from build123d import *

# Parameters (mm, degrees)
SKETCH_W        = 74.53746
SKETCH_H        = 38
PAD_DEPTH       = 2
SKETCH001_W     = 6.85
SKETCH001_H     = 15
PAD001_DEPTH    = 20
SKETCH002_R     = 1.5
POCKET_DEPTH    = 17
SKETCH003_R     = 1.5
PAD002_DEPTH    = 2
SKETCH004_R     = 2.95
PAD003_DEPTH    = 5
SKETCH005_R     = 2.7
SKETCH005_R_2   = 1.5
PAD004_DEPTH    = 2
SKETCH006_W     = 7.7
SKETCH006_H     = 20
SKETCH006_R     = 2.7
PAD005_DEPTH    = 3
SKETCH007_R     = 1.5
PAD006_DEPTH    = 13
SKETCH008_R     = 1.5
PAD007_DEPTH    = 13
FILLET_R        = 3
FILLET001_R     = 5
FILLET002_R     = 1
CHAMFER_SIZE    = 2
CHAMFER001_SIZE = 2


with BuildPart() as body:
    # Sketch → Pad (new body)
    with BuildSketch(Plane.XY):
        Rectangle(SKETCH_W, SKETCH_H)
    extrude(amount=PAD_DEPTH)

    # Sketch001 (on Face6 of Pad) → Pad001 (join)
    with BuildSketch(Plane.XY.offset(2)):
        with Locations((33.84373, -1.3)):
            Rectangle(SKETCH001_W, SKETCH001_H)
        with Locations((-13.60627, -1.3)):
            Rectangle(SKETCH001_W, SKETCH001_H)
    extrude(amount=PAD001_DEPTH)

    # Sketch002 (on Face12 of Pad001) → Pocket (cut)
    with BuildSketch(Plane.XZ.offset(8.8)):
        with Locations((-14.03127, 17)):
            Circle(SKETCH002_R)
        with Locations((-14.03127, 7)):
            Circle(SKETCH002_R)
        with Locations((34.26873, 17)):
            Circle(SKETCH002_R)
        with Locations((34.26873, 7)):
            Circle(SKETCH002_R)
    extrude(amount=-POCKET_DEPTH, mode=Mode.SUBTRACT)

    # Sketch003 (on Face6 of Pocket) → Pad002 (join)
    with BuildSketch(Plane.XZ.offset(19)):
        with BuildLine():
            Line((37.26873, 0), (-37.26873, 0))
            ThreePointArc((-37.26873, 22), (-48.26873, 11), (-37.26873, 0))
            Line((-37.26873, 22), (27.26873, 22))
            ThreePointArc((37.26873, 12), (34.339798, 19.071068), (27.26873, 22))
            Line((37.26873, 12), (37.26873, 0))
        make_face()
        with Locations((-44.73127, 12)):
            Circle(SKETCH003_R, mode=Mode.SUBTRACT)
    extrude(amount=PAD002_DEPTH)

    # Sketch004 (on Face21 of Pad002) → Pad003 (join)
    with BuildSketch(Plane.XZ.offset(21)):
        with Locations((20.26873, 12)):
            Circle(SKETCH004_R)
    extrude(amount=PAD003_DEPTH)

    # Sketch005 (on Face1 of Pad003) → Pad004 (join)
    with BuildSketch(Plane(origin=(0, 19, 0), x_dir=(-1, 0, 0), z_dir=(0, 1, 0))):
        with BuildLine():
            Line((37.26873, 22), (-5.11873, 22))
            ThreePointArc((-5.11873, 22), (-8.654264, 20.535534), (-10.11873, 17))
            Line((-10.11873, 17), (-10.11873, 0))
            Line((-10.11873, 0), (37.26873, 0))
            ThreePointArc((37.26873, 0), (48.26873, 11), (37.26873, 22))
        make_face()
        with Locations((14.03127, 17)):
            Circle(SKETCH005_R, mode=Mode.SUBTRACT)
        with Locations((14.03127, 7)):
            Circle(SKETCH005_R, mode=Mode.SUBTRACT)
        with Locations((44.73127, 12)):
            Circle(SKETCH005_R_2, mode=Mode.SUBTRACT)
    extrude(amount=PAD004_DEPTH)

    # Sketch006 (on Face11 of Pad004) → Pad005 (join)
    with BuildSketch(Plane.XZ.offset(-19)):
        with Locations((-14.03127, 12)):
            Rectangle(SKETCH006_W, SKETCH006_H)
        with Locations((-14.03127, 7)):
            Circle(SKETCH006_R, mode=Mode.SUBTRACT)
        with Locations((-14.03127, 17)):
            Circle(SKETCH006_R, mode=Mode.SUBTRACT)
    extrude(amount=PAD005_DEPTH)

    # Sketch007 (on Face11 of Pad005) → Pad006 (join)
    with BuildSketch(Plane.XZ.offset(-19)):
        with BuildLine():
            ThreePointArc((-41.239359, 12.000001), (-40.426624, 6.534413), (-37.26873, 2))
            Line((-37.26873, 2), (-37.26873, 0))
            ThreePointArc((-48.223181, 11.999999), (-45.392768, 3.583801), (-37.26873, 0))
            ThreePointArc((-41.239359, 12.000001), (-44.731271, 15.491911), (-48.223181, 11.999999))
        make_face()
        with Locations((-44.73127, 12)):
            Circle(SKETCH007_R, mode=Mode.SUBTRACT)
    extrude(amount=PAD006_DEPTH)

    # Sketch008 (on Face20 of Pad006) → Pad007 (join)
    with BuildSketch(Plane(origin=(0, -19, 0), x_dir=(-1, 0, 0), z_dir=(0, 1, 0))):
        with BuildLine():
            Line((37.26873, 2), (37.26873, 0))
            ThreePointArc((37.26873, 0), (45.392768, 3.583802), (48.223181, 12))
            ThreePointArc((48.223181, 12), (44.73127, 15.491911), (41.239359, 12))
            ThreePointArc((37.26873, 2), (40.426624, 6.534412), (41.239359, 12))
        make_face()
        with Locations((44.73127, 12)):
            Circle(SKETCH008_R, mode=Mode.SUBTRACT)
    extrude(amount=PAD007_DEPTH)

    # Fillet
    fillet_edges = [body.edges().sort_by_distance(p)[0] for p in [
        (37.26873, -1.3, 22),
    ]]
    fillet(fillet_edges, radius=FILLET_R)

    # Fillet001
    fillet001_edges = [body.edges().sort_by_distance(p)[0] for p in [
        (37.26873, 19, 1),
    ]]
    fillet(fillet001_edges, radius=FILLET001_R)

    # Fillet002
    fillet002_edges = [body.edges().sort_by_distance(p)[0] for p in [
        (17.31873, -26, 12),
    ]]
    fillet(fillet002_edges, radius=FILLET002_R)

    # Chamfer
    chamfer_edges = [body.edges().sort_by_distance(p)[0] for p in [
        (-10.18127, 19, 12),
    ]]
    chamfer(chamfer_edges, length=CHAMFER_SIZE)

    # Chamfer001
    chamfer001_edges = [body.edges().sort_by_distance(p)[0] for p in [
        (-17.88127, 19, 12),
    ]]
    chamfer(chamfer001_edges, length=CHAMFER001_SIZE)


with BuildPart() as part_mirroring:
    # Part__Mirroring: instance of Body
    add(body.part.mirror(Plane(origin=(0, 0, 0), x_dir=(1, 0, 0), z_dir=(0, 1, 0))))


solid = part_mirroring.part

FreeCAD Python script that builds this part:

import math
import FreeCAD as App
import Part
import Sketcher
from FreeCAD import Vector
Q = App.Units.Quantity


def edges_at(feature, points):
    """Names of the edges that pass closest to the given points."""
    edges = feature.Shape.Edges
    near = lambda p: min(range(len(edges)), key=lambda i: edges[i].distToShape(Part.Vertex(*p))[0])
    return sorted({f"Edge{near(p) + 1}" for p in points})

doc = App.newDocument("Part")
body = doc.addObject("PartDesign::Body", "Body")

sketch1 = body.newObject("Sketcher::SketchObject", "Sketch")
sketch1.AttachmentSupport = (doc.getObject("XY_Plane"), [""])
sketch1.MapMode = "FlatFace"
sketch1.addGeometry([
    Part.LineSegment(Vector(-37, 19, 0), Vector(-37, -19, 0)),
    Part.LineSegment(Vector(-37, -19, 0), Vector(37, -19, 0)),
    Part.LineSegment(Vector(37, -19, 0), Vector(37, 19, 0)),
    Part.LineSegment(Vector(37, 19, 0), Vector(-37, 19, 0)),
], False)
sketch1.addConstraint([
    Sketcher.Constraint("Coincident", 0, 2, 1, 1),
    Sketcher.Constraint("Coincident", 1, 2, 2, 1),
    Sketcher.Constraint("Coincident", 2, 2, 3, 1),
    Sketcher.Constraint("Coincident", 3, 2, 0, 1),
    Sketcher.Constraint("Vertical", 0),
    Sketcher.Constraint("Horizontal", 1),
    Sketcher.Constraint("Vertical", 2),
    Sketcher.Constraint("Horizontal", 3),
    Sketcher.Constraint("Symmetric", 0, 2, 2, 2, -1, 1),
    Sketcher.Constraint("DistanceY", 0, 2, 0, 1, Q("38 mm")),
    Sketcher.Constraint("DistanceX", 1, 1, 1, 2, Q("74.53746 mm")),
])
pad1 = body.newObject("PartDesign::Pad", "Pad")
pad1.Profile = sketch1
pad1.Length = 2

sketch2 = body.newObject("Sketcher::SketchObject", "Sketch001")
sketch2.AttachmentSupport = (doc.getObject("XY_Plane"), [""])
sketch2.MapMode = "FlatFace"
sketch2.AttachmentOffset = App.Placement(Vector(0, 0, 2), App.Rotation())
sketch2.addGeometry([
    Part.LineSegment(Vector(30, 6, 0), Vector(30, -9, 0)),
    Part.LineSegment(Vector(30, -9, 0), Vector(37, -9, 0)),
    Part.LineSegment(Vector(37, -9, 0), Vector(37, 6, 0)),
    Part.LineSegment(Vector(37, 6, 0), Vector(30, 6, 0)),
    Part.LineSegment(Vector(-17, 6, 0), Vector(-17, -9, 0)),
    Part.LineSegment(Vector(-17, -9, 0), Vector(-10, -9, 0)),
    Part.LineSegment(Vector(-10, -9, 0), Vector(-10, 6, 0)),
    Part.LineSegment(Vector(-10, 6, 0), Vector(-17, 6, 0)),
], False)
sketch2.addConstraint([
    Sketcher.Constraint("Coincident", 0, 2, 1, 1),
    Sketcher.Constraint("Coincident", 1, 2, 2, 1),
    Sketcher.Constraint("Coincident", 2, 2, 3, 1),
    Sketcher.Constraint("Coincident", 3, 2, 0, 1),
    Sketcher.Constraint("Coincident", 4, 2, 5, 1),
    Sketcher.Constraint("Coincident", 5, 2, 6, 1),
    Sketcher.Constraint("Coincident", 6, 2, 7, 1),
    Sketcher.Constraint("Coincident", 7, 2, 4, 1),
    Sketcher.Constraint("Vertical", 0),
    Sketcher.Constraint("Horizontal", 1),
    Sketcher.Constraint("Vertical", 2),
    Sketcher.Constraint("Horizontal", 3),
    Sketcher.Constraint("Vertical", 4),
    Sketcher.Constraint("Horizontal", 5),
    Sketcher.Constraint("Vertical", 6),
    Sketcher.Constraint("Horizontal", 7),
    Sketcher.Constraint("Horizontal", 1, 2, 4, 2),
    Sketcher.Constraint("Horizontal", 3, 2, 6, 2),
    Sketcher.Constraint("Equal", 3, 5),
    Sketcher.Constraint("DistanceY", 0, 2, 0, 1, Q("15 mm")),
    Sketcher.Constraint("DistanceX", 1, 1, 1, 2, Q("6.85 mm")),
    Sketcher.Constraint("DistanceY", 0, 2, -1, 1, Q("8.8 mm")),
    Sketcher.Constraint("DistanceX", 4, 2, 1, 2, Q("54.3 mm")),
    Sketcher.Constraint("DistanceX", -1, 1, 0, 2, Q("30.41873 mm")),
])
pad2 = body.newObject("PartDesign::Pad", "Pad001")
pad2.Profile = sketch2
pad2.Length = 20

sketch3 = body.newObject("Sketcher::SketchObject", "Sketch002")
sketch3.AttachmentSupport = (doc.getObject("XZ_Plane"), [""])
sketch3.MapMode = "FlatFace"
sketch3.AttachmentOffset = App.Placement(Vector(0, 0, 8.8), App.Rotation())
sketch3.addGeometry([
    Part.Circle(Vector(-14, 17, 0), Vector(0, 0, 1), 1.5),
    Part.Circle(Vector(-14, 7, 0), Vector(0, 0, 1), 1.5),
    Part.Circle(Vector(34.3, 17, 0), Vector(0, 0, 1), 1.5),
    Part.Circle(Vector(34.3, 7, 0), Vector(0, 0, 1), 1.5),
], False)
sketch3.addConstraint([
    Sketcher.Constraint("Equal", 0, 1),
    Sketcher.Constraint("Equal", 1, 2),
    Sketcher.Constraint("Equal", 2, 3),
    Sketcher.Constraint("Horizontal", 0, 3, 2, 3),
    Sketcher.Constraint("Horizontal", 1, 3, 3, 3),
    Sketcher.Constraint("Vertical", 0, 3, 1, 3),
    Sketcher.Constraint("Vertical", 2, 3, 3, 3),
    Sketcher.Constraint("Diameter", 0, Q("3 mm")),
    Sketcher.Constraint("DistanceY", -1, 1, 0, 3, Q("17 mm")),
    Sketcher.Constraint("DistanceY", -1, 1, 1, 3, Q("7 mm")),
    Sketcher.Constraint("DistanceX", 0, 3, 2, 3, Q("48.3 mm")),
    Sketcher.Constraint("DistanceX", 0, 3, -1, 1, Q("14.03127 mm")),
])
pocket1 = body.newObject("PartDesign::Pocket", "Pocket")
pocket1.Profile = sketch3
pocket1.Length = 17

sketch4 = body.newObject("Sketcher::SketchObject", "Sketch003")
sketch4.AttachmentSupport = (doc.getObject("XZ_Plane"), [""])
sketch4.MapMode = "FlatFace"
sketch4.AttachmentOffset = App.Placement(Vector(0, 0, 19), App.Rotation())
sketch4.addGeometry([
    Part.LineSegment(Vector(-37.3, 0, 0), Vector(37.3, 0, 0)),
    Part.LineSegment(Vector(37.3, 0, 0), Vector(37.3, 12, 0)),
    Part.ArcOfCircle(Part.Circle(Vector(27.3, 12, 0), Vector(0, 0, 1), 10), math.radians(0), math.radians(90)),
    Part.LineSegment(Vector(27.3, 22, 0), Vector(-37.3, 22, 0)),
    Part.ArcOfCircle(Part.Circle(Vector(-37.3, 11, 0), Vector(0, 0, 1), 11), math.radians(90), math.radians(270)),
    Part.Circle(Vector(-44.7, 12, 0), Vector(0, 0, 1), 1.5),
], False)
sketch4.addConstraint([
    Sketcher.Constraint("Coincident", 0, 2, 1, 1),
    Sketcher.Constraint("Tangent", 1, 2, 2, 1),
    Sketcher.Constraint("Tangent", 2, 2, 3, 1),
    Sketcher.Constraint("Tangent", 3, 2, 4, 1),
    Sketcher.Constraint("Tangent", 4, 2, 0, 1),
    Sketcher.Constraint("Horizontal", 0),
    Sketcher.Constraint("Vertical", 1),
    Sketcher.Constraint("Horizontal", 3),
    Sketcher.Constraint("Symmetric", 0, 2, 4, 2, -1, 1),
    Sketcher.Constraint("Horizontal", 2, 3, 5, 3),
    Sketcher.Constraint("Diameter", 5, Q("3 mm")),
    Sketcher.Constraint("Radius", 2, Q("9.999999 mm")),
    Sketcher.Constraint("Radius", 4, Q("11 mm")),
    Sketcher.Constraint("DistanceX", 5, 3, 2, 3, Q("72.000001 mm")),
    Sketcher.Constraint("DistanceX", 0, 1, 0, 2, Q("74.53746 mm")),
])
pad3 = body.newObject("PartDesign::Pad", "Pad002")
pad3.Profile = sketch4
pad3.Length = 2

sketch5 = body.newObject("Sketcher::SketchObject", "Sketch004")
sketch5.AttachmentSupport = (doc.getObject("XZ_Plane"), [""])
sketch5.MapMode = "FlatFace"
sketch5.AttachmentOffset = App.Placement(Vector(0, 0, 21), App.Rotation())
sketch5.addGeometry(Part.Circle(Vector(20.3, 12, 0), Vector(0, 0, 1), 3), False)
sketch5.addConstraint([
    Sketcher.Constraint("Diameter", 0, Q("5.9 mm")),
    Sketcher.Constraint("DistanceY", -1, 1, 0, 3, Q("12 mm")),
    Sketcher.Constraint("DistanceX", -1, 1, 0, 3, Q("20.26873 mm")),
])
pad4 = body.newObject("PartDesign::Pad", "Pad003")
pad4.Profile = sketch5
pad4.Length = 5

sketch6 = body.newObject("Sketcher::SketchObject", "Sketch005")
sketch6.AttachmentSupport = (doc.getObject("XZ_Plane"), [""])
sketch6.MapMode = "FlatFace"
sketch6.AttachmentOffset = App.Placement(Vector(0, 0, -19), App.Rotation())
sketch6.addGeometry([
    Part.LineSegment(Vector(-37.3, 22, 0), Vector(5.1, 22, 0)),
    Part.ArcOfCircle(Part.Circle(Vector(5.1, 17, 0), Vector(0, 0, 1), 5), math.radians(0), math.radians(90)),
    Part.LineSegment(Vector(10.1, 17, 0), Vector(10.1, 0, 0)),
    Part.LineSegment(Vector(10.1, 0, 0), Vector(-37.3, 0, 0)),
    Part.ArcOfCircle(Part.Circle(Vector(-37.3, 11, 0), Vector(0, 0, 1), 11), math.radians(90), math.radians(270)),
    Part.Circle(Vector(-14, 7, 0), Vector(0, 0, 1), 2.7),
    Part.Circle(Vector(-14, 17, 0), Vector(0, 0, 1), 2.7),
    Part.Circle(Vector(-44.7, 12, 0), Vector(0, 0, 1), 1.5),
], False)
sketch6.addConstraint([
    Sketcher.Constraint("Tangent", 0, 2, 1, 2),
    Sketcher.Constraint("Tangent", 1, 1, 2, 1),
    Sketcher.Constraint("Coincident", 2, 2, 3, 1),
    Sketcher.Constraint("Tangent", 3, 2, 4, 2),
    Sketcher.Constraint("Tangent", 4, 1, 0, 1),
    Sketcher.Constraint("Horizontal", 0),
    Sketcher.Constraint("Vertical", 2),
    Sketcher.Constraint("Horizontal", 3),
    Sketcher.Constraint("Equal", 5, 6),
    Sketcher.Constraint("PointOnObject", 2, 2, -1),
    Sketcher.Constraint("Horizontal", 1, 3, 6, 3),
    Sketcher.Constraint("Vertical", 5, 3, 6, 3),
    Sketcher.Constraint("Diameter", 7, Q("3 mm")),
    Sketcher.Constraint("Radius", 1, Q("5 mm")),
    Sketcher.Constraint("Radius", 4, Q("11 mm")),
    Sketcher.Constraint("Diameter", 5, Q("5.4 mm")),
    Sketcher.Constraint("DistanceY", -1, 1, 5, 3, Q("7 mm")),
    Sketcher.Constraint("DistanceY", -1, 1, 7, 3, Q("12 mm")),
    Sketcher.Constraint("DistanceX", 7, 3, 5, 3, Q("30.7 mm")),
    Sketcher.Constraint("DistanceX", 5, 3, 1, 3, Q("19.15 mm")),
    Sketcher.Constraint("DistanceX", 0, 1, 0, 2, Q("42.38746 mm")),
    Sketcher.Constraint("DistanceX", -1, 1, 1, 3, Q("5.11873 mm")),
])
pad5 = body.newObject("PartDesign::Pad", "Pad004")
pad5.Profile = sketch6
pad5.Length = 2
pad5.Reversed = True

sketch7 = body.newObject("Sketcher::SketchObject", "Sketch006")
sketch7.AttachmentSupport = (doc.getObject("XZ_Plane"), [""])
sketch7.MapMode = "FlatFace"
sketch7.AttachmentOffset = App.Placement(Vector(0, 0, -19), App.Rotation())
sketch7.addGeometry([
    Part.LineSegment(Vector(-17.9, 22, 0), Vector(-17.9, 2, 0)),
    Part.LineSegment(Vector(-17.9, 2, 0), Vector(-10.2, 2, 0)),
    Part.LineSegment(Vector(-10.2, 2, 0), Vector(-10.2, 22, 0)),
    Part.LineSegment(Vector(-10.2, 22, 0), Vector(-17.9, 22, 0)),
    Part.Circle(Vector(-14, 7, 0), Vector(0, 0, 1), 2.7),
    Part.Circle(Vector(-14, 17, 0), Vector(0, 0, 1), 2.7),
], False)
sketch7.addConstraint([
    Sketcher.Constraint("Coincident", 0, 2, 1, 1),
    Sketcher.Constraint("Coincident", 1, 2, 2, 1),
    Sketcher.Constraint("Coincident", 2, 2, 3, 1),
    Sketcher.Constraint("Coincident", 3, 2, 0, 1),
    Sketcher.Constraint("Vertical", 0),
    Sketcher.Constraint("Horizontal", 1),
    Sketcher.Constraint("Vertical", 2),
    Sketcher.Constraint("Horizontal", 3),
    Sketcher.Constraint("Equal", 4, 5),
    Sketcher.Constraint("Vertical", 4, 3, 5, 3),
    Sketcher.Constraint("Diameter", 4, Q("5.4 mm")),
    Sketcher.Constraint("DistanceY", 0, 2, 0, 1, Q("20 mm")),
    Sketcher.Constraint("DistanceX", 1, 1, 1, 2, Q("7.7 mm")),
    Sketcher.Constraint("DistanceY", -1, 1, 4, 3, Q("7 mm")),
    Sketcher.Constraint("DistanceY", -1, 1, 5, 3, Q("17 mm")),
    Sketcher.Constraint("DistanceY", -1, 1, 0, 2, Q("2 mm")),
    Sketcher.Constraint("DistanceX", 0, 2, 4, 3, Q("3.85 mm")),
    Sketcher.Constraint("DistanceX", 4, 3, -1, 1, Q("14.03127 mm")),
])
pad6 = body.newObject("PartDesign::Pad", "Pad005")
pad6.Profile = sketch7
pad6.Length = 3

sketch8 = body.newObject("Sketcher::SketchObject", "Sketch007")
sketch8.AttachmentSupport = (doc.getObject("XZ_Plane"), [""])
sketch8.MapMode = "FlatFace"
sketch8.AttachmentOffset = App.Placement(Vector(0, 0, -19), App.Rotation())
sketch8.addGeometry([
    Part.ArcOfCircle(Part.Circle(Vector(-29.2, 11, 0), Vector(0, 0, 1), 12.1), math.radians(175), math.radians(228)),
    Part.ArcOfCircle(Part.Circle(Vector(-44.7, 12, 0), Vector(0, 0, 1), 3.5), math.radians(0), math.radians(180)),
    Part.ArcOfCircle(Part.Circle(Vector(-37.3, 11, 0), Vector(0, 0, 1), 11), math.radians(175), math.radians(270)),
    Part.LineSegment(Vector(-37.3, 0, 0), Vector(-37.3, 2, 0)),
    Part.Circle(Vector(-44.7, 12, 0), Vector(0, 0, 1), 1.5),
], False)
sketch8.addConstraint([
    Sketcher.Constraint("Coincident", 0, 1, 1, 1),
    Sketcher.Constraint("Coincident", 1, 2, 2, 1),
    Sketcher.Constraint("Coincident", 2, 2, 3, 1),
    Sketcher.Constraint("Coincident", 3, 2, 0, 2),
    Sketcher.Constraint("Vertical", 3),
    Sketcher.Constraint("Coincident", 4, 3, 1, 3),
    Sketcher.Constraint("PointOnObject", 2, 2, -1),
    Sketcher.Constraint("Horizontal", 0, 3, 2, 3),
    Sketcher.Constraint("Horizontal", 4, 3, 0, 1),
    Sketcher.Constraint("Horizontal", 4, 3, 1, 2),
    Sketcher.Constraint("Diameter", 4, Q("3 mm")),
    Sketcher.Constraint("Radius", 2, Q("11 mm")),
    Sketcher.Constraint("DistanceY", 3, 1, 3, 2, Q("2 mm")),
    Sketcher.Constraint("DistanceY", -1, 1, 1, 3, Q("12 mm")),
    Sketcher.Constraint("Radius", 1, Q("3.491911 mm")),
    Sketcher.Constraint("Radius", 0, Q("12.100677 mm")),
    Sketcher.Constraint("DistanceX", 1, 3, -1, 1, Q("44.73127 mm")),
])
pad7 = body.newObject("PartDesign::Pad", "Pad006")
pad7.Profile = sketch8
pad7.Length = 13

sketch9 = body.newObject("Sketcher::SketchObject", "Sketch008")
sketch9.AttachmentSupport = (doc.getObject("XZ_Plane"), [""])
sketch9.MapMode = "FlatFace"
sketch9.AttachmentOffset = App.Placement(Vector(0, 0, 19), App.Rotation())
sketch9.addGeometry([
    Part.LineSegment(Vector(-37.3, 2, 0), Vector(-37.3, 0, 0)),
    Part.ArcOfCircle(Part.Circle(Vector(-37.3, 11, 0), Vector(0, 0, 1), 11), math.radians(175), math.radians(270)),
    Part.ArcOfCircle(Part.Circle(Vector(-44.7, 12, 0), Vector(0, 0, 1), 3.5), math.radians(0), math.radians(180)),
    Part.ArcOfCircle(Part.Circle(Vector(-29.2, 11, 0), Vector(0, 0, 1), 12.1), math.radians(175), math.radians(228)),
    Part.Circle(Vector(-44.7, 12, 0), Vector(0, 0, 1), 1.5),
], False)
sketch9.addConstraint([
    Sketcher.Constraint("Coincident", 0, 2, 1, 2),
    Sketcher.Constraint("Coincident", 1, 1, 2, 2),
    Sketcher.Constraint("Coincident", 2, 1, 3, 1),
    Sketcher.Constraint("Coincident", 3, 2, 0, 1),
    Sketcher.Constraint("Vertical", 0),
    Sketcher.Constraint("Coincident", 4, 3, 2, 3),
    Sketcher.Constraint("PointOnObject", 0, 2, -1),
    Sketcher.Constraint("Horizontal", 4, 3, 1, 1),
    Sketcher.Constraint("Horizontal", 1, 1, 2, 1),
    Sketcher.Constraint("Vertical", 1, 3, 0, 2),
    Sketcher.Constraint("Diameter", 4, Q("3 mm")),
    Sketcher.Constraint("Radius", 1, Q("11.000001 mm")),
    Sketcher.Constraint("DistanceY", 0, 2, 0, 1, Q("2 mm")),
    Sketcher.Constraint("DistanceY", -1, 1, 2, 3, Q("12 mm")),
    Sketcher.Constraint("DistanceY", -1, 1, 3, 3, Q("10.999999 mm")),
    Sketcher.Constraint("Radius", 2, Q("3.491911 mm")),
    Sketcher.Constraint("DistanceX", 1, 3, -1, 1, Q("37.268729 mm")),
])
pad8 = body.newObject("PartDesign::Pad", "Pad007")
pad8.Profile = sketch9
pad8.Length = 13
pad8.Reversed = True
doc.recompute()

fillet = body.newObject("PartDesign::Fillet", "Fillet")
fillet.Base = (pad8, edges_at(pad8, [(37.269, -1.3, 22)]))
fillet.Radius = 3
doc.recompute()

fillet2 = body.newObject("PartDesign::Fillet", "Fillet001")
fillet2.Base = (fillet, edges_at(fillet, [(37.269, 19, 1)]))
fillet2.Radius = 5
doc.recompute()

fillet3 = body.newObject("PartDesign::Fillet", "Fillet002")
fillet3.Base = (fillet2, edges_at(fillet2, [(17.319, -26, 12)]))
fillet3.Radius = 1
doc.recompute()

chamfer = body.newObject("PartDesign::Chamfer", "Chamfer")
chamfer.Base = (fillet3, edges_at(fillet3, [(-10.181, 19, 12)]))
chamfer.Size = 2
doc.recompute()

chamfer2 = body.newObject("PartDesign::Chamfer", "Chamfer001")
chamfer2.Base = (chamfer, edges_at(chamfer, [(-17.881, 19, 12)]))
chamfer2.Size = 2
body2 = doc.addObject("PartDesign::Body", "Body001")
doc.recompute()

mirroring = doc.addObject("Part::Mirroring", "Mirroring")
mirroring.Source = body
mirroring.Base = Vector(0, 0, 0)
mirroring.Normal = Vector(0, 1, 0)
body2.BaseFeature = mirroring
doc.recompute()
body.Visibility = False
mirroring.Visibility = False

doc.recompute()
